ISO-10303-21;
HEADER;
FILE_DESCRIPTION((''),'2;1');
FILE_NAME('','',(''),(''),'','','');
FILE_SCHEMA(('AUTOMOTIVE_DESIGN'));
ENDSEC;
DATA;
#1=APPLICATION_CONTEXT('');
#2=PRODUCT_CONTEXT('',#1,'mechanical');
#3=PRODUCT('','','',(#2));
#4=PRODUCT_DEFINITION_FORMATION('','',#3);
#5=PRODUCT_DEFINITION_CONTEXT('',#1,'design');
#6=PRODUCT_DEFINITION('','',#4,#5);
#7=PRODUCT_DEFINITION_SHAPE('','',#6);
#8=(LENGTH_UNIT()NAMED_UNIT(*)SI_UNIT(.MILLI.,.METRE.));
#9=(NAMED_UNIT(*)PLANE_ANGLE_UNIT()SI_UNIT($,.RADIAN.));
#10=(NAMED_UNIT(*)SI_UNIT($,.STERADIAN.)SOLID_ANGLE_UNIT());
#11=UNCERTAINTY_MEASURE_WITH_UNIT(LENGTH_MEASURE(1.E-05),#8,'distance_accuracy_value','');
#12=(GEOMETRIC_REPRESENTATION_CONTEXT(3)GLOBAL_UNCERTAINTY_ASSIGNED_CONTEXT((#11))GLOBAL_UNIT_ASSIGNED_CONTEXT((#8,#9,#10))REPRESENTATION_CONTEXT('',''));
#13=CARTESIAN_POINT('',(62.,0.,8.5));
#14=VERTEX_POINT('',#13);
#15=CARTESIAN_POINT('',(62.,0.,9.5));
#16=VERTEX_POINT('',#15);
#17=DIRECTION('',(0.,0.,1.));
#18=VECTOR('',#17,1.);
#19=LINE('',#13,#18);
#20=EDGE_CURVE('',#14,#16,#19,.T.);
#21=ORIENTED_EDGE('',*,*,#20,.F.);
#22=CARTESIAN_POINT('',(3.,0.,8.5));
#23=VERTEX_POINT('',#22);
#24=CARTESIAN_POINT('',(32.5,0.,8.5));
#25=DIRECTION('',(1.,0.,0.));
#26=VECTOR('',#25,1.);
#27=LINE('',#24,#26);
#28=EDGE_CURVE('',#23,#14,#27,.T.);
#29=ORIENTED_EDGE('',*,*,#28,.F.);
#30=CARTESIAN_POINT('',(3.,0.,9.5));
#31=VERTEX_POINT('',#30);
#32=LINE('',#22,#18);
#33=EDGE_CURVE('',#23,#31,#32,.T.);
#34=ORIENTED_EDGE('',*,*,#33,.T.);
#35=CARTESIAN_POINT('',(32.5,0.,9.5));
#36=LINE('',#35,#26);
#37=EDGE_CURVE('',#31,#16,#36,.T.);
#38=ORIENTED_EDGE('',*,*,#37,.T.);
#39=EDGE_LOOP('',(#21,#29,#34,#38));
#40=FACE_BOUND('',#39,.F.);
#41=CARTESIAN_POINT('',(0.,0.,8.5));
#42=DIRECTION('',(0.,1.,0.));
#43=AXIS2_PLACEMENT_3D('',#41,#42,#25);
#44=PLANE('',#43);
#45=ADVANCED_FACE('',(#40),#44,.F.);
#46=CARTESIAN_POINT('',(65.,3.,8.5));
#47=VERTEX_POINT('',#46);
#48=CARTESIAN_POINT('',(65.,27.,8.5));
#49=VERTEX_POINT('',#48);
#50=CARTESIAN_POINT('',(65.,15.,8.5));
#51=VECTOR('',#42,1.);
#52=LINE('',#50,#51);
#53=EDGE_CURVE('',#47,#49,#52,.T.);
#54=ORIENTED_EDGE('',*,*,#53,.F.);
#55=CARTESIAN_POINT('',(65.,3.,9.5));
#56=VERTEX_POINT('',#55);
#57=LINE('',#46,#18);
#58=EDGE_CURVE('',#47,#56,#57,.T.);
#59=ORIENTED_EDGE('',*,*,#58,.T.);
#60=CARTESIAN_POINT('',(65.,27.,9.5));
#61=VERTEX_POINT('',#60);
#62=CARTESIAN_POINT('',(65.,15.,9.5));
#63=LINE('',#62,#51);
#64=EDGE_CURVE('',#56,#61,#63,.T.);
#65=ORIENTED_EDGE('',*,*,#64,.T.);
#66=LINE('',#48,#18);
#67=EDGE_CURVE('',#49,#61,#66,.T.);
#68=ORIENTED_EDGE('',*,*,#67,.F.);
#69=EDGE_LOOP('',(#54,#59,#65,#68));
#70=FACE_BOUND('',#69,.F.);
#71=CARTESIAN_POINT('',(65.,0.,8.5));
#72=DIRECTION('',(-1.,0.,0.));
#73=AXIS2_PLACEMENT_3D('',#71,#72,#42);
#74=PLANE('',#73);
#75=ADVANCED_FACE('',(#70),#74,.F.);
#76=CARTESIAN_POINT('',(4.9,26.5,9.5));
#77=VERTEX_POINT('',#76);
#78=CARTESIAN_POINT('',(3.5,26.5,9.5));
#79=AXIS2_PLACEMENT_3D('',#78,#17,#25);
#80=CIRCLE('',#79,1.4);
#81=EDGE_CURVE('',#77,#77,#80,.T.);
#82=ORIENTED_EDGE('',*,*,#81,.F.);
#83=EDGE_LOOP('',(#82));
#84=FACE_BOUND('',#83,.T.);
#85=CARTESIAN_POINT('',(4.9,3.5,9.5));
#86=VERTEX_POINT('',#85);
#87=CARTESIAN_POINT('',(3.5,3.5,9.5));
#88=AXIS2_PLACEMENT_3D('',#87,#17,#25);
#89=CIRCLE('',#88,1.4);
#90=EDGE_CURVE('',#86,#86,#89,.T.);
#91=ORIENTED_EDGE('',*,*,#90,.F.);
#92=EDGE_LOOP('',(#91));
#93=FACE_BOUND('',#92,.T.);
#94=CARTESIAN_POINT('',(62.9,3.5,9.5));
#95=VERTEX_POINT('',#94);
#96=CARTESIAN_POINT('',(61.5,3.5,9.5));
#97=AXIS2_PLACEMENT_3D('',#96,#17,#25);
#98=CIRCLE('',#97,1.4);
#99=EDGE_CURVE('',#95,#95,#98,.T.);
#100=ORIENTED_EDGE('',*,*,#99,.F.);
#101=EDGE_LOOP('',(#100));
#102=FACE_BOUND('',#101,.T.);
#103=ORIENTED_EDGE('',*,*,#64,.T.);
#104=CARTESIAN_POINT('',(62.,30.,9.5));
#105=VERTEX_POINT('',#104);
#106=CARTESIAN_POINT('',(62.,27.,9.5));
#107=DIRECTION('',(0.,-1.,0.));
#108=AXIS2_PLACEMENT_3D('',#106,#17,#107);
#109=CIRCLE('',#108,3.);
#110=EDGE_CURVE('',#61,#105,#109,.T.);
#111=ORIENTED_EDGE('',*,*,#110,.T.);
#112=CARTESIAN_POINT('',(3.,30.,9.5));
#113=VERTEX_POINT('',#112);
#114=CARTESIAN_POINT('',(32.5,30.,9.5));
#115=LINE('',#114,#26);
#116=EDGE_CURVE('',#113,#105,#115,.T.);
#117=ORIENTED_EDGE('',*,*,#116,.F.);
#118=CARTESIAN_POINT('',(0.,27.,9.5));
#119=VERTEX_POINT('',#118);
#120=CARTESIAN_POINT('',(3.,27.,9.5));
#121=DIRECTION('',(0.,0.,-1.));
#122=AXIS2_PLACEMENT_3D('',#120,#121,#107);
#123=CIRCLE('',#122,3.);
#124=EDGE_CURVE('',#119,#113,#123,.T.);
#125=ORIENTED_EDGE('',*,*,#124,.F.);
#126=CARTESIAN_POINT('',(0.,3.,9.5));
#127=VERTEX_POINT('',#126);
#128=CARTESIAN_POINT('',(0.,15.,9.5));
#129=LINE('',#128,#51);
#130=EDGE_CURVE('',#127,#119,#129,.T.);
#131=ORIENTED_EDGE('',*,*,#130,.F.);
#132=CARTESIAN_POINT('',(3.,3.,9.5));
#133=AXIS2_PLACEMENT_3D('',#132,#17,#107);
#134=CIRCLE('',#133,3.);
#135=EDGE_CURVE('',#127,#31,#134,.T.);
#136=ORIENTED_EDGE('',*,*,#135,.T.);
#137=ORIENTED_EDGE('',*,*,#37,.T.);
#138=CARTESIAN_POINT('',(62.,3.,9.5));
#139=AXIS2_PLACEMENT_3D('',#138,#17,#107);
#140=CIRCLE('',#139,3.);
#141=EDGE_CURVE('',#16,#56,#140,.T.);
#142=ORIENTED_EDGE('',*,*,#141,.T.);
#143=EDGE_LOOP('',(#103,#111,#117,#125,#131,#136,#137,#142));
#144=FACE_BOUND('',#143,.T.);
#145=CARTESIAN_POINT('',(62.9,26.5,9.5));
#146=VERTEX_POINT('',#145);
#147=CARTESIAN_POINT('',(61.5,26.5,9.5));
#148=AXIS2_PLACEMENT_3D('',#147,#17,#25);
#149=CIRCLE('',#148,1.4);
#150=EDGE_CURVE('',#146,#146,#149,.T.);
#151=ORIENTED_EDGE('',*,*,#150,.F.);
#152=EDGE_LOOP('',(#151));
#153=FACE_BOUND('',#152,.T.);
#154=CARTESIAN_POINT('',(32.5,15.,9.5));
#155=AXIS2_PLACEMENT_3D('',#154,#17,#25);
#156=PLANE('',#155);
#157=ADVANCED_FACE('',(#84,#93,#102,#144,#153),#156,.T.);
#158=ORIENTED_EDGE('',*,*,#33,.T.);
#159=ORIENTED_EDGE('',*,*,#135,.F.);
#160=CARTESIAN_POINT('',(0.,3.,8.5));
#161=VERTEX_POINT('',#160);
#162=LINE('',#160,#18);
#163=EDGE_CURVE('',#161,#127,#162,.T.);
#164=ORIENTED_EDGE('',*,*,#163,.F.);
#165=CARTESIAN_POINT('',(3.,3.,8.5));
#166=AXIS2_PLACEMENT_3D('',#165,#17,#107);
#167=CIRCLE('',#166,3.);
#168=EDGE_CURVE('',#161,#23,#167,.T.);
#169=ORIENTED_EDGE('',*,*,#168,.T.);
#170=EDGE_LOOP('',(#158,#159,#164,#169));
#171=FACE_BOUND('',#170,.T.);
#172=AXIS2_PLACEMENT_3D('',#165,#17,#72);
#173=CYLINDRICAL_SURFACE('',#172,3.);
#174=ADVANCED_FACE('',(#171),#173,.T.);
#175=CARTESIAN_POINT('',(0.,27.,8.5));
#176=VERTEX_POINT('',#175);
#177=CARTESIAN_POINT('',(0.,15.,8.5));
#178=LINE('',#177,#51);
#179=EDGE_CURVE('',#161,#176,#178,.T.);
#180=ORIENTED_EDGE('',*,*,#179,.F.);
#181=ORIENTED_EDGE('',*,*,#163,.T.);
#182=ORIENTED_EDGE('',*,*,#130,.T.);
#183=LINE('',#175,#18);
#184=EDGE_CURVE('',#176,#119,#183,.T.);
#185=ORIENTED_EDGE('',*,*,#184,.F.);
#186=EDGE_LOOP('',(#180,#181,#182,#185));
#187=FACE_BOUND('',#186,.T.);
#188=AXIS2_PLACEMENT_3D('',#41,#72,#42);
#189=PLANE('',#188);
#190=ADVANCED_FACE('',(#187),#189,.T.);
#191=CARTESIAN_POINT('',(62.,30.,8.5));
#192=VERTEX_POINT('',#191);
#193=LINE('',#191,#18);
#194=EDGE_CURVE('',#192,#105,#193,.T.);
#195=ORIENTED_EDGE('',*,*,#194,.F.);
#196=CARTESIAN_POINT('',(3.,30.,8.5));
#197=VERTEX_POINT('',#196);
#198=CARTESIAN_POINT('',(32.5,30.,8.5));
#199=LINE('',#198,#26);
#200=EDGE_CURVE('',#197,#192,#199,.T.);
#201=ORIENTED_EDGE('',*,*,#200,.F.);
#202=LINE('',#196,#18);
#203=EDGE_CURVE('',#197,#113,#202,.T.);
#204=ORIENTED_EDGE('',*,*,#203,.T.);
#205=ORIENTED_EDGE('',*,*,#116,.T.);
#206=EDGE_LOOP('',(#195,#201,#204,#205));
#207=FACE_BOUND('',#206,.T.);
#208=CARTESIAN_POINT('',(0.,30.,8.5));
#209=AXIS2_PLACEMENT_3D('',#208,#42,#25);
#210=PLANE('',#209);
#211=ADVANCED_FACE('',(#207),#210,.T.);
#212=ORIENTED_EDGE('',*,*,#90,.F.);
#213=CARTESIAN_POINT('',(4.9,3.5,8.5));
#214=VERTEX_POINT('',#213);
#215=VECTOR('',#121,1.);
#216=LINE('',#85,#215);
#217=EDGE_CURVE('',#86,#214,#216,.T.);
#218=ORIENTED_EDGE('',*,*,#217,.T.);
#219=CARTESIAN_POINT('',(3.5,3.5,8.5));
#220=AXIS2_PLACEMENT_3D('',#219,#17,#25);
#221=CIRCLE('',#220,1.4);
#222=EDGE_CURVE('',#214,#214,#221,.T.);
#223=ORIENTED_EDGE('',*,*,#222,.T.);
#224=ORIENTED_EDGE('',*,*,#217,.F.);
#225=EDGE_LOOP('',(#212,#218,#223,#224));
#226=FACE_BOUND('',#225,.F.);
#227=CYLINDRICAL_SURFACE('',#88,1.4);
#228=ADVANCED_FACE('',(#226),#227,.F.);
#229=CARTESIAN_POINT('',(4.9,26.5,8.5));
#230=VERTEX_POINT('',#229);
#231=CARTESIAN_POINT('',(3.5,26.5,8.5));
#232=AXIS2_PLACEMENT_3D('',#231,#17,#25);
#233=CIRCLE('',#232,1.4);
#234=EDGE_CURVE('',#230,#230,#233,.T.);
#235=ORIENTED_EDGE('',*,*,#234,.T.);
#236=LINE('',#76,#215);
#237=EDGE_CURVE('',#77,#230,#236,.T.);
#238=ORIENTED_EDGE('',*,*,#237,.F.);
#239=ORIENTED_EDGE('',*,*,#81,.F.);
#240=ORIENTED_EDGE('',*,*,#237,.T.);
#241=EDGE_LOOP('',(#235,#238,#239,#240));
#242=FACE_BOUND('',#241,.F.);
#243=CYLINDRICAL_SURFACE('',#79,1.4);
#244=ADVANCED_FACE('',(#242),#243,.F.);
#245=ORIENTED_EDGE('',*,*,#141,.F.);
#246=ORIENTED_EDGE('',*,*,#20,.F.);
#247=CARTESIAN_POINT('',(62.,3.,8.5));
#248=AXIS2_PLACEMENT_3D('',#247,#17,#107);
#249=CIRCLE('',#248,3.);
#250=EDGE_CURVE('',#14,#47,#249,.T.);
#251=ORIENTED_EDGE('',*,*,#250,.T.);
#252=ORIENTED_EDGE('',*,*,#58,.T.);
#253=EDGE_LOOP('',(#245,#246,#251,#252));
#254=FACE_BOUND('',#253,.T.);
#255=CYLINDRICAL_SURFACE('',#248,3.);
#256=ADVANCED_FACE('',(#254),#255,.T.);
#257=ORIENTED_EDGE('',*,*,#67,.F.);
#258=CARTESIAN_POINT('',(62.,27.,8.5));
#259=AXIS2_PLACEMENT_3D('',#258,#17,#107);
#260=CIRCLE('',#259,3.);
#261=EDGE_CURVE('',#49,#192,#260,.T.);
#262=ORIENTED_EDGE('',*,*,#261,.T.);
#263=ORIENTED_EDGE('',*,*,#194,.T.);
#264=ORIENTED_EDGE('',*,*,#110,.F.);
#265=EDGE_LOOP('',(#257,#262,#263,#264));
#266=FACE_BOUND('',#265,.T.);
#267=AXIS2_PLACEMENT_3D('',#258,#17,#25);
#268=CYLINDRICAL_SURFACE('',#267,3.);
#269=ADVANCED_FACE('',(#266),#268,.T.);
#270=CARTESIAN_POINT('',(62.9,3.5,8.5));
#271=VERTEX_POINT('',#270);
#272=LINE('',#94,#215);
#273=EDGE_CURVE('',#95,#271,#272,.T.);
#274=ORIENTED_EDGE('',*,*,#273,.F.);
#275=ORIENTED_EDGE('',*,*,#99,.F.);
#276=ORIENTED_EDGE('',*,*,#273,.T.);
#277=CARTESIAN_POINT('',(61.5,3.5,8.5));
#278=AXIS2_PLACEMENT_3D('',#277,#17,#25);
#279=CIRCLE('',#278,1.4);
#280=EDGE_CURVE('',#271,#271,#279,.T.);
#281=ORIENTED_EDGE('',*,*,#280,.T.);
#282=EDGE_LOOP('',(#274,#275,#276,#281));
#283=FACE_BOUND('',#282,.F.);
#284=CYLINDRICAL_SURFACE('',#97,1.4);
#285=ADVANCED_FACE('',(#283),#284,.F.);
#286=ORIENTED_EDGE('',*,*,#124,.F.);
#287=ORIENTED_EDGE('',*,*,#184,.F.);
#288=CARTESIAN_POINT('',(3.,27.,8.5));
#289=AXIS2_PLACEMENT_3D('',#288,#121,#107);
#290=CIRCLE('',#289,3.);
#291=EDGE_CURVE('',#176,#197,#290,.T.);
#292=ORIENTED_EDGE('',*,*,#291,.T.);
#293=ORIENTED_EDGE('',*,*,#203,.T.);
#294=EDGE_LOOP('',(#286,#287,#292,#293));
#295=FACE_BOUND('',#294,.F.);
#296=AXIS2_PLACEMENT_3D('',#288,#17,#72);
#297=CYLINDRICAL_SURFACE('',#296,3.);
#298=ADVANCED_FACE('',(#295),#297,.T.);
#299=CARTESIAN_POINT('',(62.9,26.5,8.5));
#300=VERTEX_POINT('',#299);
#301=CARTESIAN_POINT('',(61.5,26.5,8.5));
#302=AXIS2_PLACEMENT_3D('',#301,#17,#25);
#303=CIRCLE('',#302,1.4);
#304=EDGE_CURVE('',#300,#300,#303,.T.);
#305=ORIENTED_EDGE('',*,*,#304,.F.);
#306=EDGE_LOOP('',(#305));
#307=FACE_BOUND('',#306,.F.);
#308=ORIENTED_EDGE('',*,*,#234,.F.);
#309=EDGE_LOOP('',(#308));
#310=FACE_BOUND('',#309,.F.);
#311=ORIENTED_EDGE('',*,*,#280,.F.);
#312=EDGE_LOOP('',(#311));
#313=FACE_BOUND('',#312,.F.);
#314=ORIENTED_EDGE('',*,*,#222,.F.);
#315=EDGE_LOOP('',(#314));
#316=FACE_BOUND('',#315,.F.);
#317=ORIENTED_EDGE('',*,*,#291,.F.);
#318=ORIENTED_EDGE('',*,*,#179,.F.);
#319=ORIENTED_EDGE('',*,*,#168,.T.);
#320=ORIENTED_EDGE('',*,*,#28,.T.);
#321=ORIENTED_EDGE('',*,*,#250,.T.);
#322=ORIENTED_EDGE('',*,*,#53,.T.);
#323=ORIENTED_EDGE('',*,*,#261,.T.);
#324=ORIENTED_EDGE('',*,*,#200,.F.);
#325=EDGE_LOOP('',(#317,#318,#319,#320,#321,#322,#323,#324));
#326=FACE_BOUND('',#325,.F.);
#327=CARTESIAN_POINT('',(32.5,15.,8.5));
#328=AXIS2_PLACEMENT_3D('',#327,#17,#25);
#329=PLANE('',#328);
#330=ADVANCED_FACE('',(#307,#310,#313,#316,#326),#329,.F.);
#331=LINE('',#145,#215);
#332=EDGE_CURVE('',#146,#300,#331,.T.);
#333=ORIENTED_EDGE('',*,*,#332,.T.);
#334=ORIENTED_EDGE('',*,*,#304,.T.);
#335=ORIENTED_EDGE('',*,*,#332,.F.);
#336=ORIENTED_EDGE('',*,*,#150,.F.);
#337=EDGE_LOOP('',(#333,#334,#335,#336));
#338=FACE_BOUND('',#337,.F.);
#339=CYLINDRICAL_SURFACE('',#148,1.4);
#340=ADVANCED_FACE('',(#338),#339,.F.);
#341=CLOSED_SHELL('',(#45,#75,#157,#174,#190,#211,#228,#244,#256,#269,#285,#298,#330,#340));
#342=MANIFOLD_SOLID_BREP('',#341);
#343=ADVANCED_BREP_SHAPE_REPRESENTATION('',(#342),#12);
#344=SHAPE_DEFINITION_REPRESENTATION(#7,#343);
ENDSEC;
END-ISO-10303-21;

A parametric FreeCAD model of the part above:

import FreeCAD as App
import Part
import Sketcher
from FreeCAD import Vector
Q = App.Units.Quantity


def edges_at(feature, points):
    """Names of the edges that pass closest to the given points."""
    edges = feature.Shape.Edges
    near = lambda p: min(range(len(edges)), key=lambda i: edges[i].distToShape(Part.Vertex(*p))[0])
    return sorted({f"Edge{near(p) + 1}" for p in points})


def add_polygon(sketch, points):
    """Adds a closed chain of lines whose ends are joined by coincident constraints."""
    first, n = sketch.GeometryCount, len(points)
    for a, b in zip(points, points[1:] + points[:1]):
        sketch.addGeometry(Part.LineSegment(App.Vector(*a, 0), App.Vector(*b, 0)), False)
    for i in range(n):
        sketch.addConstraint(Sketcher.Constraint("Coincident", first + i, 2, first + (i + 1) % n, 1))

doc = App.newDocument("Part")
params = doc.addObject("Spreadsheet::Sheet", "Params")
for row, (alias, value) in enumerate([
    ("sketch1_width", "65 mm"),
    ("sketch1_height", "30 mm"),
    ("pad1_length", "1 mm"),
    ("fillet_radius", "3 mm"),
    ("sketch2_diameter", "2.8 mm"),
    ("pocket1_length", "5 mm"),
    ("linearpattern_pitch", "58 mm"),
], start=1):
    params.set(f"A{row}", alias)
    params.set(f"B{row}", "=" + value)
    params.setAlias(f"B{row}", alias)

body = doc.addObject("PartDesign::Body", "Body")

sketch1 = body.newObject("Sketcher::SketchObject", "Sketch")
sketch1.AttachmentSupport = (doc.getObject("XY_Plane"), [""])
sketch1.MapMode = "FlatFace"
sketch1.AttachmentOffset = App.Placement(Vector(0, 0, 8.5), App.Rotation())
add_polygon(sketch1, [(0, 30), (0, 0), (65, 0), (65, 30)])
sketch1.addConstraint(Sketcher.Constraint("Vertical", 0))
sketch1.addConstraint(Sketcher.Constraint("Horizontal", 1))
sketch1.addConstraint(Sketcher.Constraint("Vertical", 2))
sketch1.addConstraint(Sketcher.Constraint("Horizontal", 3))
sketch1.addConstraint(Sketcher.Constraint("Coincident", 0, 2, -1, 1))
sketch1.addConstraint(Sketcher.Constraint("DistanceX", 1, 1, 1, 2, Q("65 mm")))
sketch1.addConstraint(Sketcher.Constraint("DistanceY", 0, 2, 0, 1, Q("30 mm")))
sketch1.setExpression("Constraints[9]", "Params.sketch1_width")
sketch1.setExpression("Constraints[10]", "Params.sketch1_height")
pad1 = body.newObject("PartDesign::Pad", "Pad")
pad1.Profile = sketch1
pad1.setExpression("Length", "Params.pad1_length")
doc.recompute()

fillet = body.newObject("PartDesign::Fillet", "Fillet")
fillet.Base = (pad1, edges_at(pad1, [
    (0, 0, 9),
    (0, 30, 9),
    (65, 30, 9),
    (65, 0, 9),
]))
fillet.setExpression("Radius", "Params.fillet_radius")

sketch2 = body.newObject("Sketcher::SketchObject", "Sketch001")
sketch2.AttachmentSupport = (doc.getObject("XY_Plane"), [""])
sketch2.MapMode = "FlatFace"
sketch2.AttachmentOffset = App.Placement(Vector(0, 0, 9.5), App.Rotation())
sketch2.addGeometry(Part.Circle(Vector(3.5, 3.5, 0), Vector(0, 0, 1), 1.4), False)
sketch2.addGeometry(Part.Circle(Vector(3.5, 26.5, 0), Vector(0, 0, 1), 1.4), False)
sketch2.addConstraint(Sketcher.Constraint("Equal", 0, 1))
sketch2.addConstraint(Sketcher.Constraint("Vertical", 0, 3, 1, 3))
sketch2.addConstraint(Sketcher.Constraint("Diameter", 0, Q("2.8 mm")))
sketch2.addConstraint(Sketcher.Constraint("DistanceY", 0, 3, 1, 3, Q("23 mm")))
sketch2.addConstraint(Sketcher.Constraint("DistanceX", -1, 1, 0, 3, Q("3.5 mm")))
sketch2.addConstraint(Sketcher.Constraint("DistanceY", -1, 1, 0, 3, Q("3.5 mm")))
sketch2.setExpression("Constraints[2]", "Params.sketch2_diameter")
pocket1 = body.newObject("PartDesign::Pocket", "Pocket")
pocket1.Profile = sketch2
pocket1.setExpression("Length", "Params.pocket1_length")
doc.recompute()

linearpattern = body.newObject("PartDesign::LinearPattern", "LinearPattern")
linearpattern.Originals = [pocket1]
linearpattern.Direction = (doc.getObject("X_Axis"), [""])
linearpattern.Mode = "offset"
linearpattern.setExpression("Offset", "Params.linearpattern_pitch")
linearpattern.Occurrences = 2
body.Tip = linearpattern

doc.recompute()
